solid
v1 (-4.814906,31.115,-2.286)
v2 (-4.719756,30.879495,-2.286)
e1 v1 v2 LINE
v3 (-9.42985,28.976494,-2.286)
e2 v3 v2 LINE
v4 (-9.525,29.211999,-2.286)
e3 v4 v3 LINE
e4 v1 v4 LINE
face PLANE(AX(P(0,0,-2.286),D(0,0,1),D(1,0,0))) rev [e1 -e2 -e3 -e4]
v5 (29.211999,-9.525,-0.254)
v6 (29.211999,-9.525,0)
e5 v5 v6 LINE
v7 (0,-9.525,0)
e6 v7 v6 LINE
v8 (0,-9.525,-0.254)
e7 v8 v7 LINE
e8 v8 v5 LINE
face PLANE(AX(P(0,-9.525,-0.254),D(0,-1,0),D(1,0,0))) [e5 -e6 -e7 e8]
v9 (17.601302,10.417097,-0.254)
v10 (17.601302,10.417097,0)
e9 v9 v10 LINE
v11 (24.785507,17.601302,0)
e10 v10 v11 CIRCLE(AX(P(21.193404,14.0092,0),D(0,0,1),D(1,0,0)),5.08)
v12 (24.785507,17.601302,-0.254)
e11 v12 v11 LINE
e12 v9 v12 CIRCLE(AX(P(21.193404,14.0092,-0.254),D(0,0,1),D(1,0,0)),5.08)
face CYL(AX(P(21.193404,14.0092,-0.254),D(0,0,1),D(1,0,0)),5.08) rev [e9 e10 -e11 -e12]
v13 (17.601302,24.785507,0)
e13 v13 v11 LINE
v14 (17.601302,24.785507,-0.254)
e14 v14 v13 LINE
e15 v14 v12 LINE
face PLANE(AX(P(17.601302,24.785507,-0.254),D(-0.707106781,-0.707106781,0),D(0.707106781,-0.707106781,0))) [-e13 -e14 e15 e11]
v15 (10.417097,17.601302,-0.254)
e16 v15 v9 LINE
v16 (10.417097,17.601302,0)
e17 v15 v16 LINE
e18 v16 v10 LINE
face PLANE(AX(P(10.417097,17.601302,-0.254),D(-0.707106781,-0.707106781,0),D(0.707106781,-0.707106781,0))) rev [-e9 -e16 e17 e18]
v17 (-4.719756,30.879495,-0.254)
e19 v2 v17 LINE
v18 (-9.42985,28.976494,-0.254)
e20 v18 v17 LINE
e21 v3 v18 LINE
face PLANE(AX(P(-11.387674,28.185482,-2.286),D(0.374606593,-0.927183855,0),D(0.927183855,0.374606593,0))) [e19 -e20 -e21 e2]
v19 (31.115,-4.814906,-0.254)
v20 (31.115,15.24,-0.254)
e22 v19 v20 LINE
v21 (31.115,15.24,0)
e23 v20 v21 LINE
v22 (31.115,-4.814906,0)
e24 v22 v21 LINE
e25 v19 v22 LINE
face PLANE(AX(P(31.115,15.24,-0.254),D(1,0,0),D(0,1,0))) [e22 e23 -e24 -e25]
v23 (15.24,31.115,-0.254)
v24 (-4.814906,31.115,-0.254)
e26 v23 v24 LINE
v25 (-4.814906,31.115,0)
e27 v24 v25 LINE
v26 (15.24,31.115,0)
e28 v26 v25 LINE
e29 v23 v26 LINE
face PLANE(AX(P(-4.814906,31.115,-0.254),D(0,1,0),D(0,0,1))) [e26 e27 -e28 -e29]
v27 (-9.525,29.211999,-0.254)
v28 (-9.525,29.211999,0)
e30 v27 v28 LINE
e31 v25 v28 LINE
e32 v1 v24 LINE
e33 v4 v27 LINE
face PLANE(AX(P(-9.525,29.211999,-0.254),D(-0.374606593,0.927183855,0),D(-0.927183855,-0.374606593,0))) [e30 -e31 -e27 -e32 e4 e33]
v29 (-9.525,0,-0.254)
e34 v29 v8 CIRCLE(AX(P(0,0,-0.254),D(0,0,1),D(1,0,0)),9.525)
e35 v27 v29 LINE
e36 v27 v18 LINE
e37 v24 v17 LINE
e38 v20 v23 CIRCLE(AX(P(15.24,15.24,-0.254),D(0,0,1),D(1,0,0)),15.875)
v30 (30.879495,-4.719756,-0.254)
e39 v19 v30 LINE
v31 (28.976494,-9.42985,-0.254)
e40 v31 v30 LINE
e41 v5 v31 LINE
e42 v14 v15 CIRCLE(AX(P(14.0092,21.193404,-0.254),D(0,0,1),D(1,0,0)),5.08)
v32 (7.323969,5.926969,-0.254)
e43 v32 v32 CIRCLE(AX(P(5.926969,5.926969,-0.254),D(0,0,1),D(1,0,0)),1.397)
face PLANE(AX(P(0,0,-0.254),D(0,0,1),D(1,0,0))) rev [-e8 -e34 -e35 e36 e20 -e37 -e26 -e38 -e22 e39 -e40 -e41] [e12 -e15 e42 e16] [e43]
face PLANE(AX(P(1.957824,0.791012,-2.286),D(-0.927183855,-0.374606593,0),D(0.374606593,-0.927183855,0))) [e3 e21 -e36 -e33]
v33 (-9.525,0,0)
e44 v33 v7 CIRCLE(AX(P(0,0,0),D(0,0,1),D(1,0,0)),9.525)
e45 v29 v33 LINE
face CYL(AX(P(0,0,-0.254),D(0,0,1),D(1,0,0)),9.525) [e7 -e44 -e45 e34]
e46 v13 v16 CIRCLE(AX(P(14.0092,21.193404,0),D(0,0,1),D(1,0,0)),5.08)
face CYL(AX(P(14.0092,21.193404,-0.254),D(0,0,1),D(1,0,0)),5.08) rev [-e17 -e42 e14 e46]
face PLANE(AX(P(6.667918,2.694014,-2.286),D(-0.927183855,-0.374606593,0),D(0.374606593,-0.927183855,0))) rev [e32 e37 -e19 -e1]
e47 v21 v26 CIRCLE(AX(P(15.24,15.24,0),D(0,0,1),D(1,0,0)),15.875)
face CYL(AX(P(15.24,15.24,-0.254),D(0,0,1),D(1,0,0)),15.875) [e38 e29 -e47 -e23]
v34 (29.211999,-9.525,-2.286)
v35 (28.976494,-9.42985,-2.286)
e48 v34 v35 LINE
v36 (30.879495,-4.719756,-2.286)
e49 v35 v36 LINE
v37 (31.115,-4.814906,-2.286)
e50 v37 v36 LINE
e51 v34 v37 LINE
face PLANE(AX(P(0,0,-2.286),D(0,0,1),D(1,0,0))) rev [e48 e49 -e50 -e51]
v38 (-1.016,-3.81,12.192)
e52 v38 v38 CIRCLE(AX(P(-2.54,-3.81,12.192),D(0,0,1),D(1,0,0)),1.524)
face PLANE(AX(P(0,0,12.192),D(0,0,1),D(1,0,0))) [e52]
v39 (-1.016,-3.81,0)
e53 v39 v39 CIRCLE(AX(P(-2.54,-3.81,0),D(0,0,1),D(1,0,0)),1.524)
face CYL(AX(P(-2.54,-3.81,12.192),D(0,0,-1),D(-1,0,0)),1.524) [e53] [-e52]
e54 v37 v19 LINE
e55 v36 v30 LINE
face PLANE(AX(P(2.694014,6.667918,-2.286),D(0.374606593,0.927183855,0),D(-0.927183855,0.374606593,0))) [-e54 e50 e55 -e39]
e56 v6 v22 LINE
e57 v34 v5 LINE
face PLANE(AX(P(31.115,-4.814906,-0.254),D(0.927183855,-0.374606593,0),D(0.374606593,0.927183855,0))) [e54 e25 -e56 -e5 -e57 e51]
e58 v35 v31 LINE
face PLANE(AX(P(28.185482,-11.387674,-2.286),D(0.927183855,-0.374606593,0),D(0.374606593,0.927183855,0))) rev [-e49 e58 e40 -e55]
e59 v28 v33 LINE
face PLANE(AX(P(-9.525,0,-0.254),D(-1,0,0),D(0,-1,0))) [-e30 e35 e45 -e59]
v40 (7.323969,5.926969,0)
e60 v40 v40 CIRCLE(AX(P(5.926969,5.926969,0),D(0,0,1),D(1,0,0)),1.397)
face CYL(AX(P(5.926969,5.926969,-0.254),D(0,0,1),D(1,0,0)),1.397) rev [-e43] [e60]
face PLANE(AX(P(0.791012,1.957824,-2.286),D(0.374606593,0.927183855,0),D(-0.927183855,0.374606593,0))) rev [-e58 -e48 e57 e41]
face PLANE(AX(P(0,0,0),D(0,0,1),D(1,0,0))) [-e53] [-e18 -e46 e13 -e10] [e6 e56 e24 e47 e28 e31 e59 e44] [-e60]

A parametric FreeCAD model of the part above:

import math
import FreeCAD as App
import Part
import Sketcher
from FreeCAD import Vector
Q = App.Units.Quantity

doc = App.newDocument("Part")
params = doc.addObject("Spreadsheet::Sheet", "Params")
for row, (alias, value) in enumerate([
    ("sketch1_radius", "0.625 in"),
    ("sketch1_radius2", "0.375 in"),
    ("sketch1_length", "0.2 in"),
    ("pad1_length", "0.01 in"),
    ("sketch2_diameter", "0.16 in"),
    ("pocket1_length", "0.01 in"),
    ("sketch3_diameter", "0.11 in"),
    ("pocket2_length", "0.01 in"),
    ("sketch4_radius", "0.2 in"),
    ("pocket3_length", "0.01 in"),
    ("sketch5_diameter", "0.12 in"),
    ("pad2_length", "0.48 in"),
    ("sketch6_radius", "0.625 in"),
    ("sketch6_length", "0.2 in"),
    ("sketch6_length2", "0.01 in"),
    ("sketch6_length3", "0.17 in"),
    ("pad3_length", "0.09 in"),
    ("pad4_length", "0.01 in"),
], start=1):
    params.set(f"A{row}", alias)
    params.set(f"B{row}", "=" + value)
    params.setAlias(f"B{row}", alias)

body = doc.addObject("PartDesign::Body", "Body")

# Sketch on XY plane
sketch1 = doc.addObject("Sketcher::SketchObject", "Sketch")
body.addObject(sketch1)
sketch1.AttachmentSupport = (doc.XY_Plane, [""])
sketch1.MapMode = "FlatFace"
sketch1.addGeometry([
    Part.LineSegment(Vector(0, -10, 0), Vector(29, -10, 0)),  # 0
    Part.LineSegment(Vector(29, -10, 0), Vector(31, -5, 0)),  # 1
    Part.LineSegment(Vector(31, -5, 0), Vector(31, 15, 0)),  # 2
    Part.ArcOfCircle(Part.Circle(Vector(15, 15, 0), Vector(0, 0, 1), 16), math.radians(0), math.radians(90)),  # 3
    Part.LineSegment(Vector(15, 31, 0), Vector(-5, 31, 0)),  # 4
    Part.LineSegment(Vector(-5, 31, 0), Vector(-10, 29, 0)),  # 5
    Part.LineSegment(Vector(-10, 29, 0), Vector(-10, 0, 0)),  # 6
    Part.ArcOfCircle(Part.Circle(Vector(0, 0, 0), Vector(0, 0, 1), 10), math.radians(180), math.radians(270)),  # 7
], False)
sketch1.addConstraint([
    Sketcher.Constraint("Coincident", 0, 2, 1, 1),
    Sketcher.Constraint("Coincident", 1, 2, 2, 1),
    Sketcher.Constraint("Tangent", 2, 2, 3, 1),
    Sketcher.Constraint("Tangent", 3, 2, 4, 1),
    Sketcher.Constraint("Coincident", 4, 2, 5, 1),
    Sketcher.Constraint("Coincident", 5, 2, 6, 1),
    Sketcher.Constraint("Tangent", 6, 2, 7, 1),
    Sketcher.Constraint("Tangent", 7, 2, 0, 1),
    Sketcher.Constraint("Horizontal", 0),
    Sketcher.Constraint("Vertical", 2),
    Sketcher.Constraint("Horizontal", 4),
    Sketcher.Constraint("Vertical", 6),
    Sketcher.Constraint("Coincident", 7, 3, -1, 1),
    Sketcher.Constraint("Equal", 4, 2),
    Sketcher.Constraint("Equal", 0, 6),
    Sketcher.Constraint("Equal", 1, 5),
    Sketcher.Constraint("Angle", 1, Q("68 deg")),
    Sketcher.Constraint("Radius", 3, Q("0.625 in")),
    Sketcher.Constraint("Radius", 7, Q("0.375 in")),
    Sketcher.Constraint("Distance", 1, Q("0.2 in")),
    Sketcher.Constraint("DistanceX", -1, 1, 3, 3, Q("0.6 in")),
])
sketch1.setExpression("Constraints[17]", "Params.sketch1_radius")
sketch1.setExpression("Constraints[18]", "Params.sketch1_radius2")
sketch1.setExpression("Constraints[19]", "Params.sketch1_length")
pad1 = doc.addObject("PartDesign::Pad", "Pad")
body.addObject(pad1)
pad1.Profile = sketch1
pad1.setExpression("Length", "Params.pad1_length")
pad1.Reversed = True

# Sketch on XY plane
sketch2 = doc.addObject("Sketcher::SketchObject", "Sketch001")
body.addObject(sketch2)
sketch2.AttachmentSupport = (doc.XY_Plane, [""])
sketch2.MapMode = "FlatFace"
sketch2.addGeometry(Part.Circle(Vector(0, 0, 0), Vector(0, 0, 1), 2), False)
sketch2.addConstraint([
    Sketcher.Constraint("Coincident", 0, 3, -1, 1),
    Sketcher.Constraint("Diameter", 0, Q("0.16 in")),
])
sketch2.setExpression("Constraints[1]", "Params.sketch2_diameter")
pocket1 = doc.addObject("PartDesign::Pocket", "Pocket")
body.addObject(pocket1)
pocket1.Profile = sketch2
pocket1.setExpression("Length", "Params.pocket1_length")

# Sketch on XY plane
sketch3 = doc.addObject("Sketcher::SketchObject", "Sketch002")
body.addObject(sketch3)
sketch3.AttachmentSupport = (doc.XY_Plane, [""])
sketch3.MapMode = "FlatFace"
sketch3.addGeometry(Part.Circle(Vector(5.9, 5.9, 0), Vector(0, 0, 1), 1.4), False)
sketch3.addConstraint([
    Sketcher.Constraint("Diameter", 0, Q("0.11 in")),
    Sketcher.Constraint("DistanceX", -1, 1, 0, 3, 5.926969),
    Sketcher.Constraint("DistanceY", -1, 1, 0, 3, 5.926969),
])
sketch3.setExpression("Constraints[0]", "Params.sketch3_diameter")
pocket2 = doc.addObject("PartDesign::Pocket", "Pocket001")
body.addObject(pocket2)
pocket2.Profile = sketch3
pocket2.setExpression("Length", "Params.pocket2_length")

# Sketch on XY plane
sketch4 = doc.addObject("Sketcher::SketchObject", "Sketch003")
body.addObject(sketch4)
sketch4.AttachmentSupport = (doc.XY_Plane, [""])
sketch4.MapMode = "FlatFace"
sketch4.addGeometry([
    Part.LineSegment(Vector(25, 18, 0), Vector(18, 25, 0)),
    Part.ArcOfCircle(Part.Circle(Vector(14, 21, 0), Vector(0, 0, 1), 5), math.radians(45), math.radians(225)),
    Part.LineSegment(Vector(10, 18, 0), Vector(18, 10, 0)),
    Part.ArcOfCircle(Part.Circle(Vector(21, 14, 0), Vector(0, 0, 1), 5), math.radians(-135), math.radians(45)),
], False)
sketch4.addConstraint([
    Sketcher.Constraint("Tangent", 0, 2, 1, 1),
    Sketcher.Constraint("Tangent", 1, 2, 2, 1),
    Sketcher.Constraint("Tangent", 2, 2, 3, 1),
    Sketcher.Constraint("Tangent", 3, 2, 0, 1),
    Sketcher.Constraint("Equal", 1, 3),
    Sketcher.Constraint("Horizontal", 1, 2, 3, 2),
    Sketcher.Constraint("Vertical", 0, 2, 2, 2),
    Sketcher.Constraint("Radius", 1, Q("0.2 in")),
    Sketcher.Constraint("DistanceX", -1, 1, 1, 3, 14.0092),
    Sketcher.Constraint("DistanceY", -1, 1, 3, 3, 14.0092),
])
sketch4.setExpression("Constraints[7]", "Params.sketch4_radius")
pocket3 = doc.addObject("PartDesign::Pocket", "Pocket002")
body.addObject(pocket3)
pocket3.Profile = sketch4
pocket3.setExpression("Length", "Params.pocket3_length")

# Sketch on XY plane
sketch5 = doc.addObject("Sketcher::SketchObject", "Sketch004")
body.addObject(sketch5)
sketch5.AttachmentSupport = (doc.XY_Plane, [""])
sketch5.MapMode = "FlatFace"
sketch5.addGeometry(Part.Circle(Vector(-2.5, -3.8, 0), Vector(0, 0, 1), 1.5), False)
sketch5.addConstraint([
    Sketcher.Constraint("Diameter", 0, Q("0.12 in")),
    Sketcher.Constraint("DistanceX", 0, 3, -1, 1, Q("0.1 in")),
    Sketcher.Constraint("DistanceY", 0, 3, -1, 1, Q("0.15 in")),
])
sketch5.setExpression("Constraints[0]", "Params.sketch5_diameter")
pad2 = doc.addObject("PartDesign::Pad", "Pad001")
body.addObject(pad2)
pad2.Profile = sketch5
pad2.setExpression("Length", "Params.pad2_length")

# Sketch on XY plane
sketch6 = doc.addObject("Sketcher::SketchObject", "Sketch005")
body.addObject(sketch6)
sketch6.AttachmentSupport = (doc.XY_Plane, [""])
sketch6.MapMode = "FlatFace"
sketch6.addGeometry([
    Part.LineSegment(Vector(28.98, -9.43, 0), Vector(29.21, -9.53, 0)),  # 0
    Part.LineSegment(Vector(29.21, -9.53, 0), Vector(31.11, -4.81, 0)),  # 1
    Part.LineSegment(Vector(31.11, -4.81, 0), Vector(30.88, -4.72, 0)),  # 2
    Part.LineSegment(Vector(30.88, -4.72, 0), Vector(28.98, -9.43, 0)),  # 3
    Part.LineSegment(Vector(27.71, 24.65, 0), Vector(27.89, 24.83, 0)),  # 4
    Part.ArcOfCircle(Part.Circle(Vector(15.24, 15.24, 0), Vector(0, 0, 1), 15.88), math.radians(37.18), math.radians(52.82)),  # 5
    Part.LineSegment(Vector(24.83, 27.89, 0), Vector(24.65, 27.71, 0)),  # 6
    Part.LineSegment(Vector(24.65, 27.71, 0), Vector(27.71, 24.65, 0)),  # 7
    Part.LineSegment(Vector(-9.53, 29.21, 0), Vector(-9.43, 28.98, 0)),  # 8
    Part.LineSegment(Vector(-9.43, 28.98, 0), Vector(-4.72, 30.88, 0)),  # 9
    Part.LineSegment(Vector(-4.72, 30.88, 0), Vector(-4.81, 31.11, 0)),  # 10
    Part.LineSegment(Vector(-4.81, 31.11, 0), Vector(-9.53, 29.21, 0)),  # 11
], False)
sketch6.addConstraint([
    Sketcher.Constraint("Coincident", 0, 2, 1, 1),
    Sketcher.Constraint("Coincident", 1, 2, 2, 1),
    Sketcher.Constraint("Coincident", 2, 2, 3, 1),
    Sketcher.Constraint("Coincident", 3, 2, 0, 1),
    Sketcher.Constraint("Coincident", 4, 2, 5, 1),
    Sketcher.Constraint("Coincident", 5, 2, 6, 1),
    Sketcher.Constraint("Coincident", 6, 2, 7, 1),
    Sketcher.Constraint("Coincident", 7, 2, 4, 1),
    Sketcher.Constraint("Coincident", 8, 2, 9, 1),
    Sketcher.Constraint("Coincident", 9, 2, 10, 1),
    Sketcher.Constraint("Coincident", 10, 2, 11, 1),
    Sketcher.Constraint("Coincident", 11, 2, 8, 1),
    Sketcher.Constraint("Perpendicular", 0, 1),
    Sketcher.Constraint("Perpendicular", 1, 2),
    Sketcher.Constraint("Perpendicular", 2, 3),
    Sketcher.Constraint("Parallel", 4, 6),
    Sketcher.Constraint("Perpendicular", 6, 7),
    Sketcher.Constraint("Perpendicular", 8, 9),
    Sketcher.Constraint("Perpendicular", 9, 10),
    Sketcher.Constraint("Perpendicular", 10, 11),
    Sketcher.Constraint("Equal", 2, 4),
    Sketcher.Constraint("Equal", 4, 6),
    Sketcher.Constraint("Equal", 6, 8),
    Sketcher.Constraint("Equal", 3, 9),
    Sketcher.Constraint("Angle", 0, Q("-22 deg")),
    Sketcher.Constraint("Angle", 4, Q("45 deg")),
    Sketcher.Constraint("Angle", 8, Q("-68 deg")),
    Sketcher.Constraint("Radius", 5, Q("0.625 in")),
    Sketcher.Constraint("Distance", 1, Q("0.2 in")),
    Sketcher.Constraint("DistanceX", -1, 1, 5, 3, Q("0.6 in")),
    Sketcher.Constraint("DistanceY", -1, 1, 5, 3, Q("0.6 in")),
    Sketcher.Constraint("Distance", 0, Q("0.01 in")),
    Sketcher.Constraint("Distance", 7, Q("0.17 in")),
    Sketcher.Constraint("DistanceY", 0, 2, -1, 1, Q("0.375 in")),
    Sketcher.Constraint("DistanceX", -1, 1, 1, 2, Q("1.225 in")),
    Sketcher.Constraint("DistanceY", -1, 1, 10, 2, Q("1.225 in")),
    Sketcher.Constraint("DistanceX", 11, 2, -1, 1, Q("0.375 in")),
])
sketch6.setExpression("Constraints[27]", "Params.sketch6_radius")
sketch6.setExpression("Constraints[28]", "Params.sketch6_length")
sketch6.setExpression("Constraints[31]", "Params.sketch6_length2")
sketch6.setExpression("Constraints[32]", "Params.sketch6_length3")
pad3 = doc.addObject("PartDesign::Pad", "Pad002")
body.addObject(pad3)
pad3.Profile = sketch6
pad3.setExpression("Length", "Params.pad3_length")
pad3.Reversed = True

# Sketch on XY plane
sketch7 = doc.addObject("Sketcher::SketchObject", "Sketch006")
body.addObject(sketch7)
sketch7.AttachmentSupport = (doc.XY_Plane, [""])
sketch7.MapMode = "FlatFace"
sketch7.addGeometry(Part.Circle(Vector(0, 0, 0), Vector(0, 0, 1), 2.1), False)
sketch7.addConstraint([
    Sketcher.Constraint("Coincident", 0, 3, -1, 1),
    Sketcher.Constraint("Diameter", 0, 4.103563),
])
pad4 = doc.addObject("PartDesign::Pad", "Pad003")
body.addObject(pad4)
pad4.Profile = sketch7
pad4.setExpression("Length", "Params.pad4_length")
pad4.Reversed = True

# Sketch on an angled plane
sketch8 = doc.addObject("Sketcher::SketchObject", "Sketch007")
body.addObject(sketch8)
sketch8.Placement = App.Placement(Vector(-1.526644, 1.526644, 0), App.Rotation(Vector(0, 0, 1), Vector(0.707106781, 0.707106781, 0), Vector(-0.707106781, 0.707106781, 0), "ZXY"))
sketch8.addGeometry([
    Part.LineSegment(Vector(-2.8, 37.7, 0), Vector(-2.8, 37, 0)),
    Part.LineSegment(Vector(-2.8, 37, 0), Vector(-0.3, 37, 0)),
    Part.LineSegment(Vector(-0.3, 37, 0), Vector(-0.3, 37.7, 0)),
    Part.LineSegment(Vector(-0.3, 37.7, 0), Vector(-2.8, 37.7, 0)),
], False)
sketch8.addConstraint([
    Sketcher.Constraint("Coincident", 0, 2, 1, 1),
    Sketcher.Constraint("Coincident", 1, 2, 2, 1),
    Sketcher.Constraint("Coincident", 2, 2, 3, 1),
    Sketcher.Constraint("Coincident", 3, 2, 0, 1),
    Sketcher.Constraint("Vertical", 0),
    Sketcher.Constraint("Horizontal", 1),
    Sketcher.Constraint("Vertical", 2),
    Sketcher.Constraint("Horizontal", 3),
    Sketcher.Constraint("DistanceX", 1, 2, -1, 1, Q("0.01 in")),
    Sketcher.Constraint("DistanceX", 1, 1, 1, 2, 2.58588),
    Sketcher.Constraint("DistanceY", 0, 2, 0, 1, 0.671824),
    Sketcher.Constraint("DistanceY", -1, 1, 2, 2, 37.697941),
])
pocket4 = doc.addObject("PartDesign::Pocket", "Pocket003")
body.addObject(pocket4)
pocket4.Profile = sketch8
pocket4.Type = "ThroughAll"

doc.recompute()
